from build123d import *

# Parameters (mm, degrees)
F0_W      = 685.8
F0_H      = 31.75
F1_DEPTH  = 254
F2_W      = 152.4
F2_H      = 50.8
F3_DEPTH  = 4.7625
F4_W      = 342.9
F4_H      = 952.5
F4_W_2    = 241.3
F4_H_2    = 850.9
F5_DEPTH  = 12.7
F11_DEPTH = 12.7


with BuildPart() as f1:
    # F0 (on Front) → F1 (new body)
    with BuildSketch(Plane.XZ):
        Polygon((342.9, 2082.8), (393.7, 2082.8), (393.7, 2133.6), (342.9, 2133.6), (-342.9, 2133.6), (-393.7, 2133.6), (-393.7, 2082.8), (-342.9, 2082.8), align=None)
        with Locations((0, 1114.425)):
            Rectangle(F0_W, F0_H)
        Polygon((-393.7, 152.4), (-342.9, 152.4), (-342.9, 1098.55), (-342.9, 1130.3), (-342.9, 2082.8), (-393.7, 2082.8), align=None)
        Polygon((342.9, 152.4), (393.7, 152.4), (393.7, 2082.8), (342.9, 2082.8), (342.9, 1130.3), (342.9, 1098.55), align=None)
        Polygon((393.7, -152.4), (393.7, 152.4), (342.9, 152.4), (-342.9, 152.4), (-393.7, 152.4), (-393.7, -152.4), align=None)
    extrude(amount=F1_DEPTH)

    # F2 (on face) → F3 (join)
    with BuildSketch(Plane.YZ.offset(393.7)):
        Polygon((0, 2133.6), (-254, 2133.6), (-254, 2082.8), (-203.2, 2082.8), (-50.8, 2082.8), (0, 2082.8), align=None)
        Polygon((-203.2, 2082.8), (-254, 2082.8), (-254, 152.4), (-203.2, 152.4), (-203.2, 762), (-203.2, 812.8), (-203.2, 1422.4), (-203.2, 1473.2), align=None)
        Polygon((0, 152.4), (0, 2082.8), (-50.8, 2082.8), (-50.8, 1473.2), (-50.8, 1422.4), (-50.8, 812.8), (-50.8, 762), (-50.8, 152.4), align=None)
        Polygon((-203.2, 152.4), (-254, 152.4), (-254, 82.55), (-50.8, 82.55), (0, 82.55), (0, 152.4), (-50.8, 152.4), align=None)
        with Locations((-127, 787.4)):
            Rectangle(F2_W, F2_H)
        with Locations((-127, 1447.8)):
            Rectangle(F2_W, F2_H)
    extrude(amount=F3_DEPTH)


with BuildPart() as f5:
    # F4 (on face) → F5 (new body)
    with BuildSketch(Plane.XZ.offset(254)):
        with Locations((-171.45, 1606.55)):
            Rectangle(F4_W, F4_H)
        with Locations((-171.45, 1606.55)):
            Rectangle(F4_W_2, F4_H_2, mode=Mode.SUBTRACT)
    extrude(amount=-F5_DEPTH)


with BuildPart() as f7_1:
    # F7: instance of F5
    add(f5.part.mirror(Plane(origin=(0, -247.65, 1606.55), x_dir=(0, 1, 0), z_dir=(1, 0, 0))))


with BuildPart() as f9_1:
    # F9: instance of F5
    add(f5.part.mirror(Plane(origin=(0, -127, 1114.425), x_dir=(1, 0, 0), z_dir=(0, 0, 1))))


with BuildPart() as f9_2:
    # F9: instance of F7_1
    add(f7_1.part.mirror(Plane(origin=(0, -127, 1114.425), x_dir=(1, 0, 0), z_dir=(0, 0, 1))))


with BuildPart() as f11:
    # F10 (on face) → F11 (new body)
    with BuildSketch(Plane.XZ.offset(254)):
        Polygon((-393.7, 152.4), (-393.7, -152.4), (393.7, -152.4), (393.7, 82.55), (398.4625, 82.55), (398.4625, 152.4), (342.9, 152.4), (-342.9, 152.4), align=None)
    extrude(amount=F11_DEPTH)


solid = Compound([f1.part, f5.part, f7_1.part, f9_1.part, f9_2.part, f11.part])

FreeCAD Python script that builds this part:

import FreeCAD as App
import Part
import Sketcher
from FreeCAD import Vector
Q = App.Units.Quantity

doc = App.newDocument("Part")
body = doc.addObject("PartDesign::Body", "Body")

# Sketch on XZ plane
sketch1 = body.newObject("Sketcher::SketchObject", "Sketch")
sketch1.AttachmentSupport = (doc.getObject("XZ_Plane"), [""])
sketch1.MapMode = "FlatFace"
sketch1.addGeometry([
    Part.LineSegment(Vector(393.7, 2133.6, 0), Vector(-393.7, 2133.6, 0)),  # 0
    Part.LineSegment(Vector(-393.7, 2133.6, 0), Vector(-393.7, -152.4, 0)),  # 1
    Part.LineSegment(Vector(-393.7, -152.4, 0), Vector(393.7, -152.4, 0)),  # 2
    Part.LineSegment(Vector(393.7, -152.4, 0), Vector(393.7, 2133.6, 0)),  # 3
    Part.LineSegment(Vector(-342.9, 152.4, 0), Vector(-342.9, 1098.55, 0)),  # 4
    Part.LineSegment(Vector(-342.9, 1098.55, 0), Vector(342.9, 1098.55, 0)),  # 5
    Part.LineSegment(Vector(342.9, 1098.55, 0), Vector(342.9, 152.4, 0)),  # 6
    Part.LineSegment(Vector(342.9, 152.4, 0), Vector(-342.9, 152.4, 0)),  # 7
    Part.LineSegment(Vector(342.9, 1130.3, 0), Vector(-342.9, 1130.3, 0)),  # 8
    Part.LineSegment(Vector(-342.9, 1130.3, 0), Vector(-342.9, 2082.8, 0)),  # 9
    Part.LineSegment(Vector(-342.9, 2082.8, 0), Vector(342.9, 2082.8, 0)),  # 10
    Part.LineSegment(Vector(342.9, 2082.8, 0), Vector(342.9, 1130.3, 0)),  # 11
], False)
sketch1.addConstraint([
    Sketcher.Constraint("Coincident", 0, 2, 1, 1),
    Sketcher.Constraint("Coincident", 1, 2, 2, 1),
    Sketcher.Constraint("Coincident", 2, 2, 3, 1),
    Sketcher.Constraint("Coincident", 3, 2, 0, 1),
    Sketcher.Constraint("Coincident", 4, 2, 5, 1),
    Sketcher.Constraint("Coincident", 5, 2, 6, 1),
    Sketcher.Constraint("Coincident", 6, 2, 7, 1),
    Sketcher.Constraint("Coincident", 7, 2, 4, 1),
    Sketcher.Constraint("Coincident", 8, 2, 9, 1),
    Sketcher.Constraint("Coincident", 9, 2, 10, 1),
    Sketcher.Constraint("Coincident", 10, 2, 11, 1),
    Sketcher.Constraint("Coincident", 11, 2, 8, 1),
    Sketcher.Constraint("Horizontal", 0),
    Sketcher.Constraint("Vertical", 1),
    Sketcher.Constraint("Horizontal", 2),
    Sketcher.Constraint("Vertical", 3),
    Sketcher.Constraint("Vertical", 4),
    Sketcher.Constraint("Horizontal", 5),
    Sketcher.Constraint("Vertical", 6),
    Sketcher.Constraint("Horizontal", 7),
    Sketcher.Constraint("Horizontal", 8),
    Sketcher.Constraint("Vertical", 9),
    Sketcher.Constraint("Horizontal", 10),
    Sketcher.Constraint("Vertical", 11),
    Sketcher.Constraint("Vertical", 7, 2, 8, 2),
    Sketcher.Constraint("Vertical", 6, 2, 10, 2),
    Sketcher.Constraint("DistanceX", 0, 2, 0, 1, Q("31 in")),
    Sketcher.Constraint("DistanceX", 5, 1, 5, 2, Q("27 in")),
    Sketcher.Constraint("DistanceY", 1, 2, 1, 1, Q("90 in")),
    Sketcher.Constraint("DistanceY", 9, 1, 9, 2, Q("37.5 in")),
    Sketcher.Constraint("DistanceY", -1, 1, 0, 2, Q("84 in")),
    Sketcher.Constraint("DistanceY", -1, 1, 6, 2, Q("6 in")),
    Sketcher.Constraint("DistanceY", -1, 1, 9, 2, Q("82 in")),
    Sketcher.Constraint("DistanceX", 0, 2, 4, 2, Q("2 in")),
    Sketcher.Constraint("DistanceY", 4, 1, 4, 2, Q("37.25 in")),
    Sketcher.Constraint("DistanceX", 0, 2, -1, 1, Q("15.5 in")),
])
pad1 = body.newObject("PartDesign::Pad", "Pad")
pad1.Profile = sketch1
pad1.Length = Q("10 in")

# Sketch on YZ plane
sketch2 = body.newObject("Sketcher::SketchObject", "Sketch001")
sketch2.AttachmentSupport = (doc.getObject("YZ_Plane"), [""])
sketch2.MapMode = "FlatFace"
sketch2.AttachmentOffset = App.Placement(Vector(0, 0, 15.5 * 25.4), App.Rotation())
sketch2.addGeometry([
    Part.LineSegment(Vector(0, 2133.6, 0), Vector(-254, 2133.6, 0)),  # 0
    Part.LineSegment(Vector(-254, 2133.6, 0), Vector(-254, 82.55, 0)),  # 1
    Part.LineSegment(Vector(-254, 82.55, 0), Vector(0, 82.55, 0)),  # 2
    Part.LineSegment(Vector(0, 82.55, 0), Vector(0, 2133.6, 0)),  # 3
    Part.LineSegment(Vector(-203.2, 152.4, 0), Vector(-203.2, 762, 0)),  # 4
    Part.LineSegment(Vector(-203.2, 762, 0), Vector(-50.8, 762, 0)),  # 5
    Part.LineSegment(Vector(-50.8, 762, 0), Vector(-50.8, 152.4, 0)),  # 6
    Part.LineSegment(Vector(-50.8, 152.4, 0), Vector(-203.2, 152.4, 0)),  # 7
    Part.LineSegment(Vector(-203.2, 812.8, 0), Vector(-203.2, 1422.4, 0)),  # 8
    Part.LineSegment(Vector(-203.2, 1422.4, 0), Vector(-50.8, 1422.4, 0)),  # 9
    Part.LineSegment(Vector(-50.8, 1422.4, 0), Vector(-50.8, 812.8, 0)),  # 10
    Part.LineSegment(Vector(-50.8, 812.8, 0), Vector(-203.2, 812.8, 0)),  # 11
    Part.LineSegment(Vector(-203.2, 1473.2, 0), Vector(-203.2, 2082.8, 0)),  # 12
    Part.LineSegment(Vector(-203.2, 2082.8, 0), Vector(-50.8, 2082.8, 0)),  # 13
    Part.LineSegment(Vector(-50.8, 2082.8, 0), Vector(-50.8, 1473.2, 0)),  # 14
    Part.LineSegment(Vector(-50.8, 1473.2, 0), Vector(-203.2, 1473.2, 0)),  # 15
], False)
sketch2.addConstraint([
    Sketcher.Constraint("Coincident", 0, 2, 1, 1),
    Sketcher.Constraint("Coincident", 1, 2, 2, 1),
    Sketcher.Constraint("Coincident", 2, 2, 3, 1),
    Sketcher.Constraint("Coincident", 3, 2, 0, 1),
    Sketcher.Constraint("Coincident", 4, 2, 5, 1),
    Sketcher.Constraint("Coincident", 5, 2, 6, 1),
    Sketcher.Constraint("Coincident", 6, 2, 7, 1),
    Sketcher.Constraint("Coincident", 7, 2, 4, 1),
    Sketcher.Constraint("Coincident", 8, 2, 9, 1),
    Sketcher.Constraint("Coincident", 9, 2, 10, 1),
    Sketcher.Constraint("Coincident", 10, 2, 11, 1),
    Sketcher.Constraint("Coincident", 11, 2, 8, 1),
    Sketcher.Constraint("Coincident", 12, 2, 13, 1),
    Sketcher.Constraint("Coincident", 13, 2, 14, 1),
    Sketcher.Constraint("Coincident", 14, 2, 15, 1),
    Sketcher.Constraint("Coincident", 15, 2, 12, 1),
    Sketcher.Constraint("Horizontal", 0),
    Sketcher.Constraint("Vertical", 1),
    Sketcher.Constraint("Horizontal", 2),
    Sketcher.Constraint("Vertical", 3),
    Sketcher.Constraint("Vertical", 4),
    Sketcher.Constraint("Horizontal", 5),
    Sketcher.Constraint("Vertical", 6),
    Sketcher.Constraint("Horizontal", 7),
    Sketcher.Constraint("Vertical", 8),
    Sketcher.Constraint("Horizontal", 9),
    Sketcher.Constraint("Vertical", 10),
    Sketcher.Constraint("Horizontal", 11),
    Sketcher.Constraint("Vertical", 12),
    Sketcher.Constraint("Horizontal", 13),
    Sketcher.Constraint("Vertical", 14),
    Sketcher.Constraint("Horizontal", 15),
    Sketcher.Constraint("PointOnObject", 2, 2, -2),
    Sketcher.Constraint("Vertical", 7, 2, 8, 2),
    Sketcher.Constraint("Vertical", 6, 2, 9, 2),
    Sketcher.Constraint("Vertical", 11, 2, 12, 2),
    Sketcher.Constraint("Vertical", 10, 2, 13, 2),
    Sketcher.Constraint("Equal", 6, 8),
    Sketcher.Constraint("Equal", 10, 12),
    Sketcher.Constraint("DistanceX", 0, 2, 0, 1, Q("10 in")),
    Sketcher.Constraint("DistanceX", 5, 1, 5, 2, Q("6 in")),
    Sketcher.Constraint("DistanceY", 4, 1, 4, 2, Q("24 in")),
    Sketcher.Constraint("DistanceY", -1, 1, 0, 2, Q("84 in")),
    Sketcher.Constraint("DistanceX", 4, 2, -1, 1, Q("8 in")),
    Sketcher.Constraint("DistanceY", -1, 1, 4, 2, Q("30 in")),
    Sketcher.Constraint("DistanceY", -1, 1, 8, 2, Q("56 in")),
    Sketcher.Constraint("DistanceY", -1, 1, 12, 2, Q("82 in")),
    Sketcher.Constraint("DistanceY", 1, 2, 1, 1, Q("80.75 in")),
])
pad2 = body.newObject("PartDesign::Pad", "Pad001")
pad2.Profile = sketch2
pad2.Length = Q("0.1875 in")
body2 = doc.addObject("PartDesign::Body", "Body001")

# Sketch on XZ plane
sketch3 = body2.newObject("Sketcher::SketchObject", "Sketch002")
sketch3.AttachmentSupport = (doc.getObject("XZ_Plane001"), [""])
sketch3.MapMode = "FlatFace"
sketch3.AttachmentOffset = App.Placement(Vector(0, 0, 10 * 25.4), App.Rotation())
sketch3.addGeometry([
    Part.LineSegment(Vector(-342.9, 2082.8, 0), Vector(-342.9, 1130.3, 0)),  # 0
    Part.LineSegment(Vector(-342.9, 1130.3, 0), Vector(0, 1130.3, 0)),  # 1
    Part.LineSegment(Vector(0, 1130.3, 0), Vector(0, 2082.8, 0)),  # 2
    Part.LineSegment(Vector(0, 2082.8, 0), Vector(-342.9, 2082.8, 0)),  # 3
    Part.LineSegment(Vector(-50.8, 1181.1, 0), Vector(-292.1, 1181.1, 0)),  # 4
    Part.LineSegment(Vector(-292.1, 1181.1, 0), Vector(-292.1, 2032, 0)),  # 5
    Part.LineSegment(Vector(-292.1, 2032, 0), Vector(-50.8, 2032, 0)),  # 6
    Part.LineSegment(Vector(-50.8, 2032, 0), Vector(-50.8, 1181.1, 0)),  # 7
], False)
sketch3.addConstraint([
    Sketcher.Constraint("Coincident", 0, 2, 1, 1),
    Sketcher.Constraint("Coincident", 1, 2, 2, 1),
    Sketcher.Constraint("Coincident", 2, 2, 3, 1),
    Sketcher.Constraint("Coincident", 3, 2, 0, 1),
    Sketcher.Constraint("Coincident", 4, 2, 5, 1),
    Sketcher.Constraint("Coincident", 5, 2, 6, 1),
    Sketcher.Constraint("Coincident", 6, 2, 7, 1),
    Sketcher.Constraint("Coincident", 7, 2, 4, 1),
    Sketcher.Constraint("Vertical", 0),
    Sketcher.Constraint("Horizontal", 1),
    Sketcher.Constraint("Vertical", 2),
    Sketcher.Constraint("Horizontal", 3),
    Sketcher.Constraint("Horizontal", 4),
    Sketcher.Constraint("Vertical", 5),
    Sketcher.Constraint("Horizontal", 6),
    Sketcher.Constraint("Vertical", 7),
    Sketcher.Constraint("PointOnObject", 1, 2, -2),
    Sketcher.Constraint("DistanceX", 1, 1, 1, 2, Q("13.5 in")),
    Sketcher.Constraint("DistanceX", 4, 2, 4, 1, Q("9.5 in")),
    Sketcher.Constraint("DistanceY", 0, 2, 0, 1, Q("37.5 in")),
    Sketcher.Constraint("DistanceY", 5, 1, 5, 2, Q("33.5 in")),
    Sketcher.Constraint("DistanceY", -1, 1, 2, 2, Q("82 in")),
    Sketcher.Constraint("DistanceY", -1, 1, 5, 2, Q("80 in")),
    Sketcher.Constraint("DistanceX", 6, 2, -1, 1, Q("2 in")),
])
pad3 = body2.newObject("PartDesign::Pad", "Pad002")
pad3.Profile = sketch3
pad3.Length = Q("0.5 in")
pad3.Reversed = True
body3 = doc.addObject("PartDesign::Body", "Body002")
doc.recompute()

mirroring = doc.addObject("Part::Mirroring", "Mirroring")
mirroring.Source = body2
mirroring.Base = Vector(0, -247.65, 1606.55)
mirroring.Normal = Vector(1, 0, 0)
body3.BaseFeature = mirroring
doc.recompute()
body4 = doc.addObject("PartDesign::Body", "Body003")
doc.recompute()

mirroring2 = doc.addObject("Part::Mirroring", "Mirroring001")
mirroring2.Source = body2
mirroring2.Base = Vector(0, -127, 1114.425)
mirroring2.Normal = Vector(0, 0, 1)
body4.BaseFeature = mirroring2
doc.recompute()
body5 = doc.addObject("PartDesign::Body", "Body004")
doc.recompute()

mirroring3 = doc.addObject("Part::Mirroring", "Mirroring002")
mirroring3.Source = body3
mirroring3.Base = Vector(0, -127, 1114.425)
mirroring3.Normal = Vector(0, 0, 1)
body5.BaseFeature = mirroring3
doc.recompute()
body6 = doc.addObject("PartDesign::Body", "Body005")

# Sketch on XZ plane
sketch4 = body6.newObject("Sketcher::SketchObject", "Sketch003")
sketch4.AttachmentSupport = (doc.getObject("XZ_Plane005"), [""])
sketch4.MapMode = "FlatFace"
sketch4.AttachmentOffset = App.Placement(Vector(0, 0, 10 * 25.4), App.Rotation())
sketch4.addGeometry([
    Part.LineSegment(Vector(-393.7, 152.4, 0), Vector(-393.7, -152.4, 0)),  # 0
    Part.LineSegment(Vector(-393.7, -152.4, 0), Vector(393.7, -152.4, 0)),  # 1
    Part.LineSegment(Vector(393.7, -152.4, 0), Vector(393.7, 82.55, 0)),  # 2
    Part.LineSegment(Vector(393.7, 82.55, 0), Vector(398.4625, 82.55, 0)),  # 3
    Part.LineSegment(Vector(398.4625, 82.55, 0), Vector(398.4625, 152.4, 0)),  # 4
    Part.LineSegment(Vector(398.4625, 152.4, 0), Vector(-393.7, 152.4, 0)),  # 5
], False)
sketch4.addConstraint([
    Sketcher.Constraint("Coincident", 0, 2, 1, 1),
    Sketcher.Constraint("Coincident", 1, 2, 2, 1),
    Sketcher.Constraint("Coincident", 2, 2, 3, 1),
    Sketcher.Constraint("Coincident", 3, 2, 4, 1),
    Sketcher.Constraint("Coincident", 4, 2, 5, 1),
    Sketcher.Constraint("Coincident", 5, 2, 0, 1),
    Sketcher.Constraint("Vertical", 0),
    Sketcher.Constraint("Horizontal", 1),
    Sketcher.Constraint("Vertical", 2),
    Sketcher.Constraint("Horizontal", 3),
    Sketcher.Constraint("Vertical", 4),
    Sketcher.Constraint("Horizontal", 5),
    Sketcher.Constraint("Symmetric", 1, 2, 5, 2, -1, 1),
    Sketcher.Constraint("DistanceX", 1, 1, 1, 2, Q("31 in")),
    Sketcher.Constraint("DistanceY", 0, 2, 0, 1, Q("12 in")),
    Sketcher.Constraint("DistanceY", 2, 1, 2, 2, Q("9.25 in")),
    Sketcher.Constraint("DistanceX", 3, 1, 3, 2, Q("0.1875 in")),
])
pad4 = body6.newObject("PartDesign::Pad", "Pad003")
pad4.Profile = sketch4
pad4.Length = Q("0.5 in")
mirroring.Visibility = False
mirroring2.Visibility = False
mirroring3.Visibility = False

doc.recompute()
